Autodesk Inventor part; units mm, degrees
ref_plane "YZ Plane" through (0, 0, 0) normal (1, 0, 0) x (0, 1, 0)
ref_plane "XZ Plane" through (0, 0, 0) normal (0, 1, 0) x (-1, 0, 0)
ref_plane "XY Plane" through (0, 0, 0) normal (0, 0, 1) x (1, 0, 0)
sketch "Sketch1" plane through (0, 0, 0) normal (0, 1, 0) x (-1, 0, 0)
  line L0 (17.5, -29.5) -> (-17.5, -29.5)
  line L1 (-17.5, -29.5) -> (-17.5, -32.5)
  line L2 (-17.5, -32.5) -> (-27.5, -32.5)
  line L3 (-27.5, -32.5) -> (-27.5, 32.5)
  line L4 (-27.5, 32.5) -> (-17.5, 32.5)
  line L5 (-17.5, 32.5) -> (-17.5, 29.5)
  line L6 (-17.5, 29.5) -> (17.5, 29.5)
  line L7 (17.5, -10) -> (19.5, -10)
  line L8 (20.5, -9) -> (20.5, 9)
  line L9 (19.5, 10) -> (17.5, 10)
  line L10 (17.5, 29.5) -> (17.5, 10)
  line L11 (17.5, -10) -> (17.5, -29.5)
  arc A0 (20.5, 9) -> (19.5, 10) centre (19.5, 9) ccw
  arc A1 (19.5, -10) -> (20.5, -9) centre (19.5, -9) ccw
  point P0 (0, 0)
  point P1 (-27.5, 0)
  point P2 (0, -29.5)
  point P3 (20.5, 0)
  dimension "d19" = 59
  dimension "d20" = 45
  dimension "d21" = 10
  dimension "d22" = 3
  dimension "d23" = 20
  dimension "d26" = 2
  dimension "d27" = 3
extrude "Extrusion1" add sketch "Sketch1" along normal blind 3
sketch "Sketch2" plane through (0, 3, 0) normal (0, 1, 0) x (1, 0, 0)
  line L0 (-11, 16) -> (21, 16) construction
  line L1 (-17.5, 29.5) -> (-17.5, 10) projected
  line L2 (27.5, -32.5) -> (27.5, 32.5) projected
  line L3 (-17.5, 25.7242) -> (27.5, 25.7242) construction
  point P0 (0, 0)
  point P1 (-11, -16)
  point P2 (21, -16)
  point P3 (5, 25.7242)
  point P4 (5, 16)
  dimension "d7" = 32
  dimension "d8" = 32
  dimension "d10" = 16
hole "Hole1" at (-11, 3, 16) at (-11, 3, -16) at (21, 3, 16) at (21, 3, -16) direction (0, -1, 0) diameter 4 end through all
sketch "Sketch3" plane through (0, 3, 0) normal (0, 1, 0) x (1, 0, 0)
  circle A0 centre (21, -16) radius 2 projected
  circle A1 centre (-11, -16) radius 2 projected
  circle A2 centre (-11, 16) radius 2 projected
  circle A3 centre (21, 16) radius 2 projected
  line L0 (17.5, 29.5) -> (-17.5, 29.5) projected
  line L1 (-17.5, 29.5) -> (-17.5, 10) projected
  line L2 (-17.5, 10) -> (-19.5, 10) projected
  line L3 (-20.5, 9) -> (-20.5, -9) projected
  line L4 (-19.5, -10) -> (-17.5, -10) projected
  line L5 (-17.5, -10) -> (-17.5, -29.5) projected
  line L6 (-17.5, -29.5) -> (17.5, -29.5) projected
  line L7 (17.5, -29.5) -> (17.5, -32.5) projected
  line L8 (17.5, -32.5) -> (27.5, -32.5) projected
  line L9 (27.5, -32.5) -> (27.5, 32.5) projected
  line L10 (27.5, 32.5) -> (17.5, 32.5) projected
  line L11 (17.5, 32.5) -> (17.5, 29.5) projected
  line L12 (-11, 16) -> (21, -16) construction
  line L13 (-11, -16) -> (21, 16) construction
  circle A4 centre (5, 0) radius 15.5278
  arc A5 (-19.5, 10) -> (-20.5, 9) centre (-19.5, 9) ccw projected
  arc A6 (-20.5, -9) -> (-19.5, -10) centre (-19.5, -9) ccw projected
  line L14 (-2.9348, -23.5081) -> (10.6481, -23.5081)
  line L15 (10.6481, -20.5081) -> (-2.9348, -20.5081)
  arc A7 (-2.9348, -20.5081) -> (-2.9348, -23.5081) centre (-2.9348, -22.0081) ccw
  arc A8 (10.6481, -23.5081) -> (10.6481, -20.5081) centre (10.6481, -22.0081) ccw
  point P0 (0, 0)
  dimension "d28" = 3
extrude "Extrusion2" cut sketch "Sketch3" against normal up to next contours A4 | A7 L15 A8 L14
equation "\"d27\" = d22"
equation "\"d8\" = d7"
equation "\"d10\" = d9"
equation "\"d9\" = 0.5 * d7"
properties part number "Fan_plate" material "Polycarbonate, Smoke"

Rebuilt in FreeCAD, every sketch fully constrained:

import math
import FreeCAD as App
import Part
import Sketcher

doc = App.newDocument("Part")
body = doc.addObject("PartDesign::Body", "Body")

# Sketch on XZ plane
sketch1 = body.newObject("Sketcher::SketchObject", "Sketch")
sketch1.AttachmentSupport = (doc.getObject("XZ_Plane"), [""])
sketch1.MapMode = "FlatFace"
sketch1.addGeometry(Part.LineSegment(App.Vector(17.5, -29.5, 0), App.Vector(-17.5, -29.5, 0)), False)
sketch1.addGeometry(Part.LineSegment(App.Vector(-17.5, -29.5, 0), App.Vector(-17.5, -10, 0)), False)
sketch1.addGeometry(Part.LineSegment(App.Vector(-17.5, -10, 0), App.Vector(-19.5, -10, 0)), False)
sketch1.addGeometry(Part.ArcOfCircle(Part.Circle(App.Vector(-19.5, -9, 0), App.Vector(0, 0, 1), 1), math.radians(180), math.radians(270)), False)
sketch1.addGeometry(Part.LineSegment(App.Vector(-20.5, -9, 0), App.Vector(-20.5, 9, 0)), False)
sketch1.addGeometry(Part.ArcOfCircle(Part.Circle(App.Vector(-19.5, 9, 0), App.Vector(0, 0, 1), 1), math.radians(90), math.radians(180)), False)
sketch1.addGeometry(Part.LineSegment(App.Vector(-19.5, 10, 0), App.Vector(-17.5, 10, 0)), False)
sketch1.addGeometry(Part.LineSegment(App.Vector(-17.5, 10, 0), App.Vector(-17.5, 29.5, 0)), False)
sketch1.addGeometry(Part.LineSegment(App.Vector(-17.5, 29.5, 0), App.Vector(17.5, 29.5, 0)), False)
sketch1.addGeometry(Part.LineSegment(App.Vector(17.5, 29.5, 0), App.Vector(17.5, 32.5, 0)), False)
sketch1.addGeometry(Part.LineSegment(App.Vector(17.5, 32.5, 0), App.Vector(27.5, 32.5, 0)), False)
sketch1.addGeometry(Part.LineSegment(App.Vector(27.5, 32.5, 0), App.Vector(27.5, -32.5, 0)), False)
sketch1.addGeometry(Part.LineSegment(App.Vector(27.5, -32.5, 0), App.Vector(17.5, -32.5, 0)), False)
sketch1.addGeometry(Part.LineSegment(App.Vector(17.5, -32.5, 0), App.Vector(17.5, -29.5, 0)), False)
sketch1.addConstraint(Sketcher.Constraint("Coincident", 0, 2, 1, 1))
sketch1.addConstraint(Sketcher.Constraint("Coincident", 1, 2, 2, 1))
sketch1.addConstraint(Sketcher.Constraint("Tangent", 2, 2, 3, 2))
sketch1.addConstraint(Sketcher.Constraint("Tangent", 3, 1, 4, 1))
sketch1.addConstraint(Sketcher.Constraint("Tangent", 4, 2, 5, 2))
sketch1.addConstraint(Sketcher.Constraint("Tangent", 5, 1, 6, 1))
sketch1.addConstraint(Sketcher.Constraint("Coincident", 6, 2, 7, 1))
sketch1.addConstraint(Sketcher.Constraint("Coincident", 7, 2, 8, 1))
sketch1.addConstraint(Sketcher.Constraint("Coincident", 8, 2, 9, 1))
sketch1.addConstraint(Sketcher.Constraint("Coincident", 9, 2, 10, 1))
sketch1.addConstraint(Sketcher.Constraint("Coincident", 10, 2, 11, 1))
sketch1.addConstraint(Sketcher.Constraint("Coincident", 11, 2, 12, 1))
sketch1.addConstraint(Sketcher.Constraint("Coincident", 12, 2, 13, 1))
sketch1.addConstraint(Sketcher.Constraint("Coincident", 13, 2, 0, 1))
sketch1.addConstraint(Sketcher.Constraint("Horizontal", 0))
sketch1.addConstraint(Sketcher.Constraint("Vertical", 1))
sketch1.addConstraint(Sketcher.Constraint("Horizontal", 2))
sketch1.addConstraint(Sketcher.Constraint("Vertical", 4))
sketch1.addConstraint(Sketcher.Constraint("Horizontal", 6))
sketch1.addConstraint(Sketcher.Constraint("Vertical", 7))
sketch1.addConstraint(Sketcher.Constraint("Horizontal", 8))
sketch1.addConstraint(Sketcher.Constraint("Vertical", 9))
sketch1.addConstraint(Sketcher.Constraint("Horizontal", 10))
sketch1.addConstraint(Sketcher.Constraint("Vertical", 11))
sketch1.addConstraint(Sketcher.Constraint("Horizontal", 12))
sketch1.addConstraint(Sketcher.Constraint("Vertical", 13))
sketch1.addConstraint(Sketcher.Constraint("Equal", 3, 5))
sketch1.addConstraint(Sketcher.Constraint("Symmetric", 0, 2, 8, 2, -1, 1))
sketch1.addConstraint(Sketcher.Constraint("Symmetric", 1, 2, 6, 2, -1))
sketch1.addConstraint(Sketcher.Constraint("Symmetric", 9, 2, 12, 2, -1))
sketch1.addConstraint(Sketcher.Constraint("Radius", 3, 1.0))
sketch1.addConstraint(Sketcher.Constraint("DistanceX", 2, 2, 2, 1, 2.0))
sketch1.addConstraint(Sketcher.Constraint("DistanceX", 10, 1, 10, 2, 10.0))
sketch1.addConstraint(Sketcher.Constraint("DistanceY", 9, 1, 9, 2, 3.0))
sketch1.addConstraint(Sketcher.Constraint("DistanceY", 1, 2, -1, 1, 10.0))
sketch1.addConstraint(Sketcher.Constraint("DistanceX", 7, 2, 10, 2, 45.0))
sketch1.addConstraint(Sketcher.Constraint("DistanceY", 11, 2, 11, 1, 65.0))
pad1 = body.newObject("PartDesign::Pad", "Pad")
pad1.Profile = sketch1
pad1.Length = 3
pad1.Reversed = True

# Sketch on XZ plane
sketch2 = body.newObject("Sketcher::SketchObject", "Sketch001")
sketch2.AttachmentSupport = (doc.getObject("XZ_Plane"), [""])
sketch2.MapMode = "FlatFace"
sketch2.AttachmentOffset = App.Placement(App.Vector(0, 0, -3), App.Rotation())
sketch2.addGeometry(Part.Circle(App.Vector(-11, 16, 0), App.Vector(0, 0, 1), 2), False)
sketch2.addGeometry(Part.Circle(App.Vector(-11, -16, 0), App.Vector(0, 0, 1), 2), False)
sketch2.addGeometry(Part.Circle(App.Vector(21, 16, 0), App.Vector(0, 0, 1), 2), False)
sketch2.addGeometry(Part.Circle(App.Vector(21, -16, 0), App.Vector(0, 0, 1), 2), False)
sketch2.addConstraint(Sketcher.Constraint("Equal", 0, 1))
sketch2.addConstraint(Sketcher.Constraint("Equal", 1, 2))
sketch2.addConstraint(Sketcher.Constraint("Equal", 2, 3))
sketch2.addConstraint(Sketcher.Constraint("Symmetric", 0, 3, 1, 3, -1))
sketch2.addConstraint(Sketcher.Constraint("Symmetric", 2, 3, 3, 3, -1))
sketch2.addConstraint(Sketcher.Constraint("Horizontal", 0, 3, 2, 3))
sketch2.addConstraint(Sketcher.Constraint("Diameter", 0, 4.0))
sketch2.addConstraint(Sketcher.Constraint("DistanceX", 0, 3, -1, 1, 11.0))
sketch2.addConstraint(Sketcher.Constraint("DistanceY", -1, 1, 0, 3, 16.0))
sketch2.addConstraint(Sketcher.Constraint("DistanceX", -1, 1, 2, 3, 21.0))
doc.recompute()
hole = body.newObject("PartDesign::Hole", "Hole")
hole.Profile = sketch2
hole.ThreadType = "None"
hole.Diameter = 4
hole.DepthType = "ThroughAll"
hole.Reversed = True

# Sketch on XZ plane
sketch3 = body.newObject("Sketcher::SketchObject", "Sketch002")
sketch3.AttachmentSupport = (doc.getObject("XZ_Plane"), [""])
sketch3.MapMode = "FlatFace"
sketch3.AttachmentOffset = App.Placement(App.Vector(0, 0, -3), App.Rotation())
sketch3.addGeometry(Part.Circle(App.Vector(5, 0, 0), App.Vector(0, 0, 1), 15.5), False)
sketch3.addGeometry(Part.ArcOfCircle(Part.Circle(App.Vector(-2.9, 22, 0), App.Vector(0, 0, 1), 1.5), math.radians(90), math.radians(270)), False)
sketch3.addGeometry(Part.LineSegment(App.Vector(-2.9, 23.5, 0), App.Vector(10.6, 23.5, 0)), False)
sketch3.addGeometry(Part.ArcOfCircle(Part.Circle(App.Vector(10.6, 22, 0), App.Vector(0, 0, 1), 1.5), math.radians(-90), math.radians(90)), False)
sketch3.addGeometry(Part.LineSegment(App.Vector(10.6, 20.5, 0), App.Vector(-2.9, 20.5, 0)), False)
sketch3.addConstraint(Sketcher.Constraint("Tangent", 1, 1, 2, 1))
sketch3.addConstraint(Sketcher.Constraint("Tangent", 2, 2, 3, 2))
sketch3.addConstraint(Sketcher.Constraint("Tangent", 3, 1, 4, 1))
sketch3.addConstraint(Sketcher.Constraint("Tangent", 4, 2, 1, 2))
sketch3.addConstraint(Sketcher.Constraint("Horizontal", 2))
sketch3.addConstraint(Sketcher.Constraint("Horizontal", 4))
sketch3.addConstraint(Sketcher.Constraint("PointOnObject", 0, 3, -1))
sketch3.addConstraint(Sketcher.Constraint("Radius", 1, 1.5))
sketch3.addConstraint(Sketcher.Constraint("DistanceX", -1, 1, 0, 3, 5.0))
sketch3.addConstraint(Sketcher.Constraint("Diameter", 0, 31.0556))
sketch3.addConstraint(Sketcher.Constraint("DistanceX", 2, 1, 2, 2, 13.583))
sketch3.addConstraint(Sketcher.Constraint("DistanceY", -1, 1, 1, 3, 22.008))
sketch3.addConstraint(Sketcher.Constraint("DistanceX", -1, 1, 3, 3, 10.648))
pocket1 = body.newObject("PartDesign::Pocket", "Pocket")
pocket1.Profile = sketch3
pocket1.Type = "UpToFirst"
pocket1.Reversed = True

doc.recompute()
